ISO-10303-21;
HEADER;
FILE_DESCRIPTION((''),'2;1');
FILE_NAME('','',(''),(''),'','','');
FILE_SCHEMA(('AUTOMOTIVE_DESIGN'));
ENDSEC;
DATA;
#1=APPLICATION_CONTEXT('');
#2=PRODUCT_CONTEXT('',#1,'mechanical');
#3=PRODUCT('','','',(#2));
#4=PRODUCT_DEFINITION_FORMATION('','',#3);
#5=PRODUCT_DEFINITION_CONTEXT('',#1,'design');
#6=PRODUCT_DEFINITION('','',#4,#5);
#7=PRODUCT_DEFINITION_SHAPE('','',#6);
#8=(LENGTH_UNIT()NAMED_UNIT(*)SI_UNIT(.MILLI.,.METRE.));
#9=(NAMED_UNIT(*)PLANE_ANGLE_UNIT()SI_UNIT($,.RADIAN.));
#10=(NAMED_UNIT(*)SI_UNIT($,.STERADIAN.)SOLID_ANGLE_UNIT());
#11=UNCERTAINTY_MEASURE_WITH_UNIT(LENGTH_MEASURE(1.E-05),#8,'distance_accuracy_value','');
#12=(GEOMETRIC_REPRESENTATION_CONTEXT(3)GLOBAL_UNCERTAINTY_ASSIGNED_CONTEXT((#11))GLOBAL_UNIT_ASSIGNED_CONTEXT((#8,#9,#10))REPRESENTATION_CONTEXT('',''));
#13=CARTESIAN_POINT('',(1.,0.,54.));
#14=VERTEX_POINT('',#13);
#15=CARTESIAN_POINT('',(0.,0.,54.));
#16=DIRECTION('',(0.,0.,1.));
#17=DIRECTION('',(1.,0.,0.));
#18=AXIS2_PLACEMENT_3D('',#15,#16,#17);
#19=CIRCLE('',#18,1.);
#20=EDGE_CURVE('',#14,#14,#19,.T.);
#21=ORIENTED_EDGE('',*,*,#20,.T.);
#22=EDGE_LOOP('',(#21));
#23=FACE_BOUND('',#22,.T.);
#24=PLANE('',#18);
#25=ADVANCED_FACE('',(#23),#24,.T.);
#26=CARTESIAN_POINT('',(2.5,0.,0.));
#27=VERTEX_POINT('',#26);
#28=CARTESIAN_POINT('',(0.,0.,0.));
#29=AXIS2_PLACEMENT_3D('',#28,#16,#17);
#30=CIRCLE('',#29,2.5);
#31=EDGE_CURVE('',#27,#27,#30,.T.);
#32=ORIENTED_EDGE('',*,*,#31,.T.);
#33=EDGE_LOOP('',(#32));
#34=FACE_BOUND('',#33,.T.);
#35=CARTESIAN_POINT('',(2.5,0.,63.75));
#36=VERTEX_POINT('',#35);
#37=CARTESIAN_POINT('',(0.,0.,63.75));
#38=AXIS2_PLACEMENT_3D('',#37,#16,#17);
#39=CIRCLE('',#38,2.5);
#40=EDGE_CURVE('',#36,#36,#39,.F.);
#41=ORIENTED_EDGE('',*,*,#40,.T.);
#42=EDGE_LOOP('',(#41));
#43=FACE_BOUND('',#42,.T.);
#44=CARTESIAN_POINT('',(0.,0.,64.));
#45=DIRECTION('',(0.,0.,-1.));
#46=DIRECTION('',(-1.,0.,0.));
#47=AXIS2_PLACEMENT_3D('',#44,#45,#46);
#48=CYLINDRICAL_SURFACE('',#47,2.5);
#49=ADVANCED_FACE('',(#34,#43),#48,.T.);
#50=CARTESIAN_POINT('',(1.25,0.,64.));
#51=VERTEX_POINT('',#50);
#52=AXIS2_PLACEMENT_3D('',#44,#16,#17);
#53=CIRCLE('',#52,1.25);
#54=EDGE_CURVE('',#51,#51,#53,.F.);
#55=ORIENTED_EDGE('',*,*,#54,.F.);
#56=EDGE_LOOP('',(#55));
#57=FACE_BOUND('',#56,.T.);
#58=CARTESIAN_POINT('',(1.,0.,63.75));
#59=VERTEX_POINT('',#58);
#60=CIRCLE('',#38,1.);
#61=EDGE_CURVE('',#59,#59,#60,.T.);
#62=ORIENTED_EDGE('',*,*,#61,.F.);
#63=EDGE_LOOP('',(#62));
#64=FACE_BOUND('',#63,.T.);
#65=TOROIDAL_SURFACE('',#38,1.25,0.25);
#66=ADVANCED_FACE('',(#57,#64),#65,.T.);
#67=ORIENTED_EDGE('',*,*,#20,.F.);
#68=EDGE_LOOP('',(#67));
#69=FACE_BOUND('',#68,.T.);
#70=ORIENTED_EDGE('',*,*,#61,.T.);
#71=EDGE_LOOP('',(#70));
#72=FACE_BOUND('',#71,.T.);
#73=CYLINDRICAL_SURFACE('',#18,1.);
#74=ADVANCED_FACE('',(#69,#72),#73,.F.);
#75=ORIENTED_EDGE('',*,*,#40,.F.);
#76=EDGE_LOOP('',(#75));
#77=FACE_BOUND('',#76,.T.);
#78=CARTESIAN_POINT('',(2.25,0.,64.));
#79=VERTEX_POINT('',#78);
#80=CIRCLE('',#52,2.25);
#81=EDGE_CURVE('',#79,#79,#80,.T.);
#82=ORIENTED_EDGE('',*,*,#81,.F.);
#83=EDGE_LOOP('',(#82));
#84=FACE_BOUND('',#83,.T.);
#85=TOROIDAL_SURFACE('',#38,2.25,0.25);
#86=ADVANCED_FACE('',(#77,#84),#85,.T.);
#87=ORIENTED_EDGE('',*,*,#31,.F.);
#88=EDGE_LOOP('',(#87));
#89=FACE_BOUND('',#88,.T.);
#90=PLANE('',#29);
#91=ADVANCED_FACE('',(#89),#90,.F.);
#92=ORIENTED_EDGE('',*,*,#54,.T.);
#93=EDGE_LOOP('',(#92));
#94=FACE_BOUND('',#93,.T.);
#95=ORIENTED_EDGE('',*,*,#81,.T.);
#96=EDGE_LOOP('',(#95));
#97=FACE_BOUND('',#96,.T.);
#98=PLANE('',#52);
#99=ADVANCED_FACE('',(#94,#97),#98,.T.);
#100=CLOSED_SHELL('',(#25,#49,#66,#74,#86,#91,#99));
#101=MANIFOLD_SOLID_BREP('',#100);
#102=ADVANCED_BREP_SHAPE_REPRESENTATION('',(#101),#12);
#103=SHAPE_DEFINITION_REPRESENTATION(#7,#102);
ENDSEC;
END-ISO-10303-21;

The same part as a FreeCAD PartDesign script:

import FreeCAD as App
import Part
import Sketcher
Q = App.Units.Quantity


def edges_at(feature, points):
    """Names of the edges that pass closest to the given points."""
    edges = feature.Shape.Edges
    near = lambda p: min(range(len(edges)), key=lambda i: edges[i].distToShape(Part.Vertex(*p))[0])
    return sorted({f"Edge{near(p) + 1}" for p in points})

doc = App.newDocument("Part")
body = doc.addObject("PartDesign::Body", "Body")

# Sketch on XY plane
sketch1 = body.newObject("Sketcher::SketchObject", "Sketch")
sketch1.AttachmentSupport = (doc.getObject("XY_Plane"), [""])
sketch1.MapMode = "FlatFace"
sketch1.addGeometry(Part.Circle(App.Vector(0, 0, 0), App.Vector(0, 0, 1), 2.5), False)
sketch1.addConstraint(Sketcher.Constraint("Coincident", 0, 3, -1, 1))
sketch1.addConstraint(Sketcher.Constraint("Diameter", 0, Q("5 mm")))
pad1 = body.newObject("PartDesign::Pad", "Pad")
pad1.Profile = sketch1
pad1.Length = 64

# Sketch on XY plane
sketch2 = body.newObject("Sketcher::SketchObject", "Sketch001")
sketch2.AttachmentSupport = (doc.getObject("XY_Plane"), [""])
sketch2.MapMode = "FlatFace"
sketch2.AttachmentOffset = App.Placement(App.Vector(0, 0, 64), App.Rotation())
sketch2.addGeometry(Part.Circle(App.Vector(0, 0, 0), App.Vector(0, 0, 1), 1), False)
sketch2.addConstraint(Sketcher.Constraint("Coincident", 0, 3, -1, 1))
sketch2.addConstraint(Sketcher.Constraint("Diameter", 0, Q("2 mm")))
pocket1 = body.newObject("PartDesign::Pocket", "Pocket")
pocket1.Profile = sketch2
pocket1.Length = 10
doc.recompute()

fillet = body.newObject("PartDesign::Fillet", "Fillet")
fillet.Base = (pocket1, edges_at(pocket1, [(-2.5, 0, 64), (-1, 0, 64)]))
fillet.Radius = 0.25

doc.recompute()
